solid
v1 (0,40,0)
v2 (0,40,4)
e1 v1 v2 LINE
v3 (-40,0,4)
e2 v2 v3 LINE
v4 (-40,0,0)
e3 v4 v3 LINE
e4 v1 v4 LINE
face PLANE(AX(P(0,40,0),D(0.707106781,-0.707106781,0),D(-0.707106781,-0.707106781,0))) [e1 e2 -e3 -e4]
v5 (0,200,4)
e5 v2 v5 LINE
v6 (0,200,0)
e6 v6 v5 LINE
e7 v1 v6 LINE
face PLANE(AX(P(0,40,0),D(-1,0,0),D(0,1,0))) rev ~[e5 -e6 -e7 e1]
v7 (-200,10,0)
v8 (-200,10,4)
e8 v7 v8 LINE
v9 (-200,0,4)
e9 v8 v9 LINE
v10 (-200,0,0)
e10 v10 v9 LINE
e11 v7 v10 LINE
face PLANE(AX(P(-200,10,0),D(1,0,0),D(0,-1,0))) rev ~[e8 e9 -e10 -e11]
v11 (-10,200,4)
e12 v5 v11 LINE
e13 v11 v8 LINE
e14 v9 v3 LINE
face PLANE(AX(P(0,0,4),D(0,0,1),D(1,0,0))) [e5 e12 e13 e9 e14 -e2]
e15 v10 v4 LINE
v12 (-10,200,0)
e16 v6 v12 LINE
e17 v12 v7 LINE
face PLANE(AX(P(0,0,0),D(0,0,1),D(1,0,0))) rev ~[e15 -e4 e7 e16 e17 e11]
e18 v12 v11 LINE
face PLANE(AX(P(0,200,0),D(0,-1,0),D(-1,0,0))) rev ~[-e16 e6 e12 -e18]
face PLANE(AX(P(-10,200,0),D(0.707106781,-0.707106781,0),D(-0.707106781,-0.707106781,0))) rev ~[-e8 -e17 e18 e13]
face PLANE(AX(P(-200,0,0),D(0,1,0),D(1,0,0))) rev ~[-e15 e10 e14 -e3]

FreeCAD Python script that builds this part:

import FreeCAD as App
import Part
import Sketcher
from FreeCAD import Vector


def add_polygon(sketch, points):
    """Adds a closed chain of lines whose ends are joined by coincident constraints."""
    first, n = sketch.GeometryCount, len(points)
    for a, b in zip(points, points[1:] + points[:1]):
        sketch.addGeometry(Part.LineSegment(App.Vector(*a, 0), App.Vector(*b, 0)), False)
    for i in range(n):
        sketch.addConstraint(Sketcher.Constraint("Coincident", first + i, 2, first + (i + 1) % n, 1))

doc = App.newDocument("Part")
body = doc.addObject("PartDesign::Body", "Body")

# Sketch on XY plane
sketch1 = body.newObject("Sketcher::SketchObject", "Sketch")
sketch1.AttachmentSupport = (doc.getObject("XY_Plane"), [""])
sketch1.MapMode = "FlatFace"
add_polygon(sketch1, [(-40, 0), (0, 40), (0, 200), (-10, 200), (-200, 10), (-200, 0)])  # lines 0-5
sketch1.addConstraint(Sketcher.Constraint("Vertical", 1))
sketch1.addConstraint(Sketcher.Constraint("Horizontal", 2))
sketch1.addConstraint(Sketcher.Constraint("Vertical", 4))
sketch1.addConstraint(Sketcher.Constraint("Horizontal", 5))
sketch1.addConstraint(Sketcher.Constraint("PointOnObject", 0, 2, -2))
sketch1.addConstraint(Sketcher.Constraint("PointOnObject", 4, 2, -1))
sketch1.addConstraint(Sketcher.Constraint("Parallel", 0, 3))
sketch1.addConstraint(Sketcher.Constraint("Equal", 5, 1))
sketch1.addConstraint(Sketcher.Constraint("Equal", 2, 4))
sketch1.addConstraint(Sketcher.Constraint("DistanceX", 2, 2, 2, 1, 10.0))
sketch1.addConstraint(Sketcher.Constraint("DistanceY", -1, 1, 0, 2, 40.0))
sketch1.addConstraint(Sketcher.Constraint("DistanceY", -1, 1, 1, 2, 200.0))
pad1 = body.newObject("PartDesign::Pad", "Pad")
pad1.Profile = sketch1
pad1.Length = 4

doc.recompute()
